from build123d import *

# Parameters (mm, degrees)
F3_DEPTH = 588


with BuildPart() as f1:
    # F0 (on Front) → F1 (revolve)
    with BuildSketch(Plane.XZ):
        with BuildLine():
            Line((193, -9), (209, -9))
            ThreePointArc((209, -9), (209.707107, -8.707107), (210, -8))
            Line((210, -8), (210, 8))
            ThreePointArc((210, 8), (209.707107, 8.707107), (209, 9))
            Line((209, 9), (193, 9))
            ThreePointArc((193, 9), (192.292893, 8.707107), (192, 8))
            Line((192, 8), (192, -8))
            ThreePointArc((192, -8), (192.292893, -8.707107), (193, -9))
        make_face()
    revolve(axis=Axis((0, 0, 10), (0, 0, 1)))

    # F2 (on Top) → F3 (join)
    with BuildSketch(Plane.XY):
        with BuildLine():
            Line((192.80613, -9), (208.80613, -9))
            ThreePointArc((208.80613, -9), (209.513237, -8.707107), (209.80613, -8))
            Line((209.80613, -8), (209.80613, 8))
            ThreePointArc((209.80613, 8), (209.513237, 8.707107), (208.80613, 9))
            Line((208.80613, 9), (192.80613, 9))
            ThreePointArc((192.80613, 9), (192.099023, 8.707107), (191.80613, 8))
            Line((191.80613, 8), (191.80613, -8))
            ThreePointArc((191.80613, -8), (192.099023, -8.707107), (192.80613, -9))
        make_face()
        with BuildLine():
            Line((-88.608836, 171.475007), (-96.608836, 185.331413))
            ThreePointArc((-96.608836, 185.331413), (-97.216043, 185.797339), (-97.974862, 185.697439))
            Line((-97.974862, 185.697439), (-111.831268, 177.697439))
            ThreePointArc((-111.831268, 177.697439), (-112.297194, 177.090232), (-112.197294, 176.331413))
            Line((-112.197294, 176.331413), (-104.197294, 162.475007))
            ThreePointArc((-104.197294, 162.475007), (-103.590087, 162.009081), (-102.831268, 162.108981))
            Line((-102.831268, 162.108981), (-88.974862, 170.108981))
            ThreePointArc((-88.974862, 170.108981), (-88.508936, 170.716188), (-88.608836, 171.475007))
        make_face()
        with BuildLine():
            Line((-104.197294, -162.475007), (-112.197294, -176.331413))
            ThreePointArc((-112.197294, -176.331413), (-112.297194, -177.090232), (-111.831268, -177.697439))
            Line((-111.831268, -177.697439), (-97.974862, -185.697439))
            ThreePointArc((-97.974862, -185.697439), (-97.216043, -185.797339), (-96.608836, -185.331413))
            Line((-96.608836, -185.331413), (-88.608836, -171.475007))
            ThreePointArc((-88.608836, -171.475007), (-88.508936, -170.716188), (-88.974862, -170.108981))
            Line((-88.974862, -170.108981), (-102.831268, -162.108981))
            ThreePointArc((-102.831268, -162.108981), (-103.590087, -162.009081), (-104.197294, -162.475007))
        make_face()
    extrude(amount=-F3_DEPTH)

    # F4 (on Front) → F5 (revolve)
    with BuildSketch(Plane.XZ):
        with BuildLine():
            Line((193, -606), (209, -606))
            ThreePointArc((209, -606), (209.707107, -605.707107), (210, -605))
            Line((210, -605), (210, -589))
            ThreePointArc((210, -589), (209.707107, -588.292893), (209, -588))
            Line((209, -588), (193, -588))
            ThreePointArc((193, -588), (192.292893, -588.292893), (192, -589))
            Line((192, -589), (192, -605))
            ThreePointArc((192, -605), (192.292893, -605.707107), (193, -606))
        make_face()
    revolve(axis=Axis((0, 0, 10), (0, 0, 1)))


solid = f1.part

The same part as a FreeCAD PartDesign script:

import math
import FreeCAD as App
import Part
import Sketcher
from FreeCAD import Vector
Q = App.Units.Quantity

doc = App.newDocument("Part")
params = doc.addObject("Spreadsheet::Sheet", "Params")
for row, (alias, value) in enumerate([
    ("sketch1_radius", "0.999999 mm"),
    ("sketch1_width", "16 mm"),
    ("revolution_angle", "360 deg"),
    ("sketch2_radius", "0.999999 mm"),
    ("sketch2_radius2", "1.000001 mm"),
    ("sketch2_width", "16 mm"),
    ("sketch2_length", "16 mm"),
    ("pad1_length", "588 mm"),
    ("sketch3_radius", "0.999999 mm"),
    ("sketch3_width", "16 mm"),
    ("revolution2_angle", "360 deg"),
], start=1):
    params.set(f"A{row}", alias)
    params.set(f"B{row}", "=" + value)
    params.setAlias(f"B{row}", alias)

body = doc.addObject("PartDesign::Body", "Body")

sketch1 = doc.addObject("Sketcher::SketchObject", "Sketch")
body.addObject(sketch1)
sketch1.AttachmentSupport = (doc.XZ_Plane, [""])
sketch1.MapMode = "FlatFace"
sketch1.addGeometry([
    Part.LineSegment(Vector(193, -9, 0), Vector(209, -9, 0)),
    Part.ArcOfCircle(Part.Circle(Vector(209.000001, -8.000001, 0), Vector(0, 0, 1), 0.999999), math.radians(-90.000043), math.radians(0.000043)),
    Part.LineSegment(Vector(210, -8, 0), Vector(210, 8, 0)),
    Part.ArcOfCircle(Part.Circle(Vector(209.000001, 8.000001, 0), Vector(0, 0, 1), 0.999999), math.radians(-0.000043), math.radians(90.000043)),
    Part.LineSegment(Vector(209, 9, 0), Vector(193, 9, 0)),
    Part.ArcOfCircle(Part.Circle(Vector(192.999999, 8.000001, 0), Vector(0, 0, 1), 0.999999), math.radians(89.999957), math.radians(180.000043)),
    Part.LineSegment(Vector(192, 8, 0), Vector(192, -8, 0)),
    Part.ArcOfCircle(Part.Circle(Vector(192.999999, -8.000001, 0), Vector(0, 0, 1), 0.999999), math.radians(179.999957), math.radians(270.000043)),
], False)
sketch1.addConstraint([
    Sketcher.Constraint("Tangent", 0, 2, 1, 1),
    Sketcher.Constraint("Tangent", 1, 2, 2, 1),
    Sketcher.Constraint("Tangent", 2, 2, 3, 1),
    Sketcher.Constraint("Tangent", 3, 2, 4, 1),
    Sketcher.Constraint("Tangent", 4, 2, 5, 1),
    Sketcher.Constraint("Tangent", 5, 2, 6, 1),
    Sketcher.Constraint("Tangent", 6, 2, 7, 1),
    Sketcher.Constraint("Tangent", 7, 2, 0, 1),
    Sketcher.Constraint("Horizontal", 0),
    Sketcher.Constraint("Vertical", 2),
    Sketcher.Constraint("Horizontal", 4),
    Sketcher.Constraint("Vertical", 6),
    Sketcher.Constraint("Equal", 1, 3),
    Sketcher.Constraint("Equal", 3, 5),
    Sketcher.Constraint("Equal", 5, 7),
    Sketcher.Constraint("Equal", 4, 2),
    Sketcher.Constraint("Radius", 1, Q("0.999999 mm")),
    Sketcher.Constraint("DistanceX", 0, 1, 0, 2, Q("16 mm")),
    Sketcher.Constraint("DistanceX", -1, 1, 1, 3, Q("209.000001 mm")),
    Sketcher.Constraint("DistanceY", 1, 3, -1, 1, Q("8.000001 mm")),
])
sketch1.setExpression("Constraints[16]", "Params.sketch1_radius")
sketch1.setExpression("Constraints[17]", "Params.sketch1_width")
revolution = doc.addObject("PartDesign::Revolution", "Revolution")
body.addObject(revolution)
revolution.Profile = sketch1
revolution.ReferenceAxis = (sketch1, ["V_Axis"])
revolution.setExpression("Angle", "Params.revolution_angle")

sketch2 = doc.addObject("Sketcher::SketchObject", "Sketch001")
body.addObject(sketch2)
sketch2.AttachmentSupport = (doc.XY_Plane, [""])
sketch2.MapMode = "FlatFace"
sketch2.addGeometry([
    Part.LineSegment(Vector(192.80613, -9, 0), Vector(208.80613, -9, 0)),
    Part.ArcOfCircle(Part.Circle(Vector(208.806131, -8.000001, 0), Vector(0, 0, 1), 0.999999), math.radians(-90.000043), math.radians(0.000043)),
    Part.LineSegment(Vector(209.80613, -8, 0), Vector(209.80613, 8, 0)),
    Part.ArcOfCircle(Part.Circle(Vector(208.806131, 8.000001, 0), Vector(0, 0, 1), 0.999999), math.radians(-0.000043), math.radians(90.000043)),
    Part.LineSegment(Vector(208.80613, 9, 0), Vector(192.80613, 9, 0)),
    Part.ArcOfCircle(Part.Circle(Vector(192.806129, 8.000001, 0), Vector(0, 0, 1), 0.999999), math.radians(89.999957), math.radians(180.000043)),
    Part.LineSegment(Vector(191.80613, 8, 0), Vector(191.80613, -8, 0)),
    Part.ArcOfCircle(Part.Circle(Vector(192.806129, -8.000001, 0), Vector(0, 0, 1), 0.999999), math.radians(179.999957), math.radians(270.000043)),
    Part.LineSegment(Vector(-88.608836, 171.475007, 0), Vector(-96.608836, 185.331413, 0)),
    Part.ArcOfCircle(Part.Circle(Vector(-97.474862, 184.831412, 0), Vector(0, 0, 1), 1.000001), math.radians(30.000033), math.radians(119.999933)),
    Part.LineSegment(Vector(-97.974862, 185.697439, 0), Vector(-111.831268, 177.697439, 0)),
    Part.ArcOfCircle(Part.Circle(Vector(-111.331267, 176.831413, 0), Vector(0, 0, 1), 1.000001), math.radians(120.000033), math.radians(209.999933)),
    Part.LineSegment(Vector(-112.197294, 176.331413, 0), Vector(-104.197294, 162.475007, 0)),
    Part.ArcOfCircle(Part.Circle(Vector(-103.331268, 162.975008, 0), Vector(0, 0, 1), 1.000001), math.radians(-149.999967), math.radians(-60.000067)),
    Part.LineSegment(Vector(-102.831268, 162.108981, 0), Vector(-88.974862, 170.108981, 0)),
    Part.ArcOfCircle(Part.Circle(Vector(-89.474863, 170.975007, 0), Vector(0, 0, 1), 1.000001), math.radians(-59.999967), math.radians(29.999933)),
    Part.LineSegment(Vector(-104.197294, -162.475007, 0), Vector(-112.197294, -176.331413, 0)),
    Part.ArcOfCircle(Part.Circle(Vector(-111.331267, -176.831413, 0), Vector(0, 0, 1), 1.000001), math.radians(150.000067), math.radians(239.999967)),
    Part.LineSegment(Vector(-111.831268, -177.697439, 0), Vector(-97.974862, -185.697439, 0)),
    Part.ArcOfCircle(Part.Circle(Vector(-97.474862, -184.831412, 0), Vector(0, 0, 1), 1.000001), math.radians(-119.999933), math.radians(-30.000033)),
    Part.LineSegment(Vector(-96.608836, -185.331413, 0), Vector(-88.608836, -171.475007, 0)),
    Part.ArcOfCircle(Part.Circle(Vector(-89.474863, -170.975007, 0), Vector(0, 0, 1), 1.000001), math.radians(-29.999933), math.radians(59.999967)),
    Part.LineSegment(Vector(-88.974862, -170.108981, 0), Vector(-102.831268, -162.108981, 0)),
    Part.ArcOfCircle(Part.Circle(Vector(-103.331268, -162.975008, 0), Vector(0, 0, 1), 1.000001), math.radians(60.000067), math.radians(149.999967)),
], False)
sketch2.addConstraint([
    Sketcher.Constraint("Tangent", 0, 2, 1, 1),
    Sketcher.Constraint("Tangent", 1, 2, 2, 1),
    Sketcher.Constraint("Tangent", 2, 2, 3, 1),
    Sketcher.Constraint("Tangent", 3, 2, 4, 1),
    Sketcher.Constraint("Tangent", 4, 2, 5, 1),
    Sketcher.Constraint("Tangent", 5, 2, 6, 1),
    Sketcher.Constraint("Tangent", 6, 2, 7, 1),
    Sketcher.Constraint("Tangent", 7, 2, 0, 1),
    Sketcher.Constraint("Tangent", 8, 2, 9, 1),
    Sketcher.Constraint("Tangent", 9, 2, 10, 1),
    Sketcher.Constraint("Tangent", 10, 2, 11, 1),
    Sketcher.Constraint("Tangent", 11, 2, 12, 1),
    Sketcher.Constraint("Tangent", 12, 2, 13, 1),
    Sketcher.Constraint("Tangent", 13, 2, 14, 1),
    Sketcher.Constraint("Tangent", 14, 2, 15, 1),
    Sketcher.Constraint("Tangent", 15, 2, 8, 1),
    Sketcher.Constraint("Tangent", 16, 2, 17, 1),
    Sketcher.Constraint("Tangent", 17, 2, 18, 1),
    Sketcher.Constraint("Tangent", 18, 2, 19, 1),
    Sketcher.Constraint("Tangent", 19, 2, 20, 1),
    Sketcher.Constraint("Tangent", 20, 2, 21, 1),
    Sketcher.Constraint("Tangent", 21, 2, 22, 1),
    Sketcher.Constraint("Tangent", 22, 2, 23, 1),
    Sketcher.Constraint("Tangent", 23, 2, 16, 1),
    Sketcher.Constraint("Horizontal", 0),
    Sketcher.Constraint("Vertical", 2),
    Sketcher.Constraint("Horizontal", 4),
    Sketcher.Constraint("Vertical", 6),
    Sketcher.Constraint("Equal", 1, 3),
    Sketcher.Constraint("Equal", 3, 5),
    Sketcher.Constraint("Equal", 5, 7),
    Sketcher.Constraint("Equal", 9, 11),
    Sketcher.Constraint("Equal", 11, 13),
    Sketcher.Constraint("Equal", 13, 15),
    Sketcher.Constraint("Equal", 15, 17),
    Sketcher.Constraint("Equal", 17, 19),
    Sketcher.Constraint("Equal", 19, 21),
    Sketcher.Constraint("Equal", 21, 23),
    Sketcher.Constraint("Symmetric", 11, 3, 17, 3, -1),
    Sketcher.Constraint("Symmetric", 9, 3, 19, 3, -1),
    Sketcher.Constraint("Symmetric", 15, 3, 21, 3, -1),
    Sketcher.Constraint("Symmetric", 13, 3, 23, 3, -1),
    Sketcher.Constraint("Perpendicular", 8, 10),
    Sketcher.Constraint("Perpendicular", 10, 12),
    Sketcher.Constraint("Perpendicular", 12, 14),
    Sketcher.Constraint("Equal", 4, 2),
    Sketcher.Constraint("Equal", 8, 10),
    Sketcher.Constraint("Radius", 1, Q("0.999999 mm")),
    Sketcher.Constraint("Radius", 9, Q("1.000001 mm")),
    Sketcher.Constraint("DistanceX", 0, 1, 0, 2, Q("16 mm")),
    Sketcher.Constraint("Angle", 8, Q("120.000001 deg")),
    Sketcher.Constraint("Distance", 8, Q("16 mm")),
    Sketcher.Constraint("DistanceY", 1, 3, -1, 1, Q("8.000001 mm")),
    Sketcher.Constraint("DistanceX", 13, 3, 3, 3, Q("312.137398 mm")),
    Sketcher.Constraint("DistanceX", -1, 1, 1, 3, Q("208.806131 mm")),
    Sketcher.Constraint("DistanceY", -1, 1, 9, 3, Q("184.831412 mm")),
])
sketch2.setExpression("Constraints[47]", "Params.sketch2_radius")
sketch2.setExpression("Constraints[48]", "Params.sketch2_radius2")
sketch2.setExpression("Constraints[49]", "Params.sketch2_width")
sketch2.setExpression("Constraints[51]", "Params.sketch2_length")
pad1 = doc.addObject("PartDesign::Pad", "Pad")
body.addObject(pad1)
pad1.Profile = sketch2
pad1.setExpression("Length", "Params.pad1_length")
pad1.Reversed = True

sketch3 = doc.addObject("Sketcher::SketchObject", "Sketch002")
body.addObject(sketch3)
sketch3.AttachmentSupport = (doc.XZ_Plane, [""])
sketch3.MapMode = "FlatFace"
sketch3.addGeometry([
    Part.LineSegment(Vector(193, -606, 0), Vector(209, -606, 0)),
    Part.ArcOfCircle(Part.Circle(Vector(209.000001, -605.000001, 0), Vector(0, 0, 1), 0.999999), math.radians(-90.000043), math.radians(0.000043)),
    Part.LineSegment(Vector(210, -605, 0), Vector(210, -589, 0)),
    Part.ArcOfCircle(Part.Circle(Vector(209.000001, -588.999999, 0), Vector(0, 0, 1), 0.999999), math.radians(-0.000043), math.radians(90.000043)),
    Part.LineSegment(Vector(209, -588, 0), Vector(193, -588, 0)),
    Part.ArcOfCircle(Part.Circle(Vector(192.999999, -588.999999, 0), Vector(0, 0, 1), 0.999999), math.radians(89.999957), math.radians(180.000043)),
    Part.LineSegment(Vector(192, -589, 0), Vector(192, -605, 0)),
    Part.ArcOfCircle(Part.Circle(Vector(192.999999, -605.000001, 0), Vector(0, 0, 1), 0.999999), math.radians(179.999957), math.radians(270.000043)),
], False)
sketch3.addConstraint([
    Sketcher.Constraint("Tangent", 0, 2, 1, 1),
    Sketcher.Constraint("Tangent", 1, 2, 2, 1),
    Sketcher.Constraint("Tangent", 2, 2, 3, 1),
    Sketcher.Constraint("Tangent", 3, 2, 4, 1),
    Sketcher.Constraint("Tangent", 4, 2, 5, 1),
    Sketcher.Constraint("Tangent", 5, 2, 6, 1),
    Sketcher.Constraint("Tangent", 6, 2, 7, 1),
    Sketcher.Constraint("Tangent", 7, 2, 0, 1),
    Sketcher.Constraint("Horizontal", 0),
    Sketcher.Constraint("Vertical", 2),
    Sketcher.Constraint("Horizontal", 4),
    Sketcher.Constraint("Vertical", 6),
    Sketcher.Constraint("Equal", 1, 3),
    Sketcher.Constraint("Equal", 3, 5),
    Sketcher.Constraint("Equal", 5, 7),
    Sketcher.Constraint("Equal", 4, 2),
    Sketcher.Constraint("Radius", 1, Q("0.999999 mm")),
    Sketcher.Constraint("DistanceX", 0, 1, 0, 2, Q("16 mm")),
    Sketcher.Constraint("DistanceX", -1, 1, 1, 3, Q("209.000001 mm")),
    Sketcher.Constraint("DistanceY", 1, 3, -1, 1, Q("605.000001 mm")),
])
sketch3.setExpression("Constraints[16]", "Params.sketch3_radius")
sketch3.setExpression("Constraints[17]", "Params.sketch3_width")
revolution2 = doc.addObject("PartDesign::Revolution", "Revolution001")
body.addObject(revolution2)
revolution2.Profile = sketch3
revolution2.ReferenceAxis = (sketch3, ["V_Axis"])
revolution2.setExpression("Angle", "Params.revolution2_angle")

doc.recompute()
